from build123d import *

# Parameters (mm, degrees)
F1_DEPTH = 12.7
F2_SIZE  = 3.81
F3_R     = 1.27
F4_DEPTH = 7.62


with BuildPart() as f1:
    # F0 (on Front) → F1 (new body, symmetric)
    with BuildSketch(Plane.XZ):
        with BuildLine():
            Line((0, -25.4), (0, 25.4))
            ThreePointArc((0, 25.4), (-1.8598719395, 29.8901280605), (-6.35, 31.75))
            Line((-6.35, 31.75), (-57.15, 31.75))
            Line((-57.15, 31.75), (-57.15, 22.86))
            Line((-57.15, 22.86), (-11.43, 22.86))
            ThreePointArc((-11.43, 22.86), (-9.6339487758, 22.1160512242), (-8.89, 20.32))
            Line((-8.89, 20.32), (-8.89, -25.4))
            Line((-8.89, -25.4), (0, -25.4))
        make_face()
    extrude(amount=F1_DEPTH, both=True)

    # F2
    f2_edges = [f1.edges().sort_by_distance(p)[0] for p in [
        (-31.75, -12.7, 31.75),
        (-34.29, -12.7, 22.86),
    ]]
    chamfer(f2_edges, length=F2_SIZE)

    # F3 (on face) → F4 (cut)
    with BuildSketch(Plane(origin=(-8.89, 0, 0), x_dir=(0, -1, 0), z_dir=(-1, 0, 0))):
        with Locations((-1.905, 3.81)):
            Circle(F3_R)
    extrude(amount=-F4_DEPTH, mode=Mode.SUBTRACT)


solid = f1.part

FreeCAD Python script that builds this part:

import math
import FreeCAD as App
import Part
import Sketcher
Q = App.Units.Quantity


def edges_at(feature, points):
    """Names of the edges that pass closest to the given points."""
    edges = feature.Shape.Edges
    near = lambda p: min(range(len(edges)), key=lambda i: edges[i].distToShape(Part.Vertex(*p))[0])
    return sorted({f"Edge{near(p) + 1}" for p in points})

doc = App.newDocument("Part")
body = doc.addObject("PartDesign::Body", "Body")

# Sketch on XZ plane
sketch1 = doc.addObject("Sketcher::SketchObject", "Sketch")
body.addObject(sketch1)
sketch1.AttachmentSupport = (doc.XZ_Plane, [""])
sketch1.MapMode = "FlatFace"
sketch1.addGeometry([
    Part.LineSegment(App.Vector(0, -25.4, 0), App.Vector(0, 25.4, 0)),  # 0
    Part.ArcOfCircle(Part.Circle(App.Vector(-6.3, 25.4, 0), App.Vector(0, 0, 1), 6.3), math.radians(0), math.radians(90)),  # 1
    Part.LineSegment(App.Vector(-6.3, 31.8, 0), App.Vector(-57.1, 31.8, 0)),  # 2
    Part.LineSegment(App.Vector(-57.1, 31.8, 0), App.Vector(-57.1, 22.9, 0)),  # 3
    Part.LineSegment(App.Vector(-57.1, 22.9, 0), App.Vector(-11.4, 22.9, 0)),  # 4
    Part.ArcOfCircle(Part.Circle(App.Vector(-11.4, 20.3, 0), App.Vector(0, 0, 1), 2.5), math.radians(0), math.radians(90)),  # 5
    Part.LineSegment(App.Vector(-8.9, 20.3, 0), App.Vector(-8.9, -25.4, 0)),  # 6
    Part.LineSegment(App.Vector(-8.9, -25.4, 0), App.Vector(0, -25.4, 0)),  # 7
], False)
sketch1.addConstraint([
    Sketcher.Constraint("Tangent", 0, 2, 1, 1),
    Sketcher.Constraint("Tangent", 1, 2, 2, 1),
    Sketcher.Constraint("Coincident", 2, 2, 3, 1),
    Sketcher.Constraint("Coincident", 3, 2, 4, 1),
    Sketcher.Constraint("Tangent", 4, 2, 5, 2),
    Sketcher.Constraint("Tangent", 5, 1, 6, 1),
    Sketcher.Constraint("Coincident", 6, 2, 7, 1),
    Sketcher.Constraint("Coincident", 7, 2, 0, 1),
    Sketcher.Constraint("Vertical", 0),
    Sketcher.Constraint("Horizontal", 2),
    Sketcher.Constraint("Vertical", 3),
    Sketcher.Constraint("Horizontal", 4),
    Sketcher.Constraint("Vertical", 6),
    Sketcher.Constraint("Horizontal", 7),
    Sketcher.Constraint("Symmetric", 0, 2, 7, 2, -1, 1),
    Sketcher.Constraint("Equal", 2, 0),
    Sketcher.Constraint("Equal", 7, 3),
    Sketcher.Constraint("Radius", 5, Q("0.1 in")),
    Sketcher.Constraint("DistanceX", 2, 2, 2, 1, Q("2 in")),
    Sketcher.Constraint("Radius", 1, Q("0.25 in")),
    Sketcher.Constraint("DistanceX", 4, 1, 4, 2, Q("1.8 in")),
])
pad1 = doc.addObject("PartDesign::Pad", "Pad")
body.addObject(pad1)
pad1.Profile = sketch1
pad1.Length = Q("1 in")
pad1.Midplane = True
doc.recompute()

chamfer = doc.addObject("PartDesign::Chamfer", "Chamfer")
body.addObject(chamfer)
chamfer.Base = (pad1, edges_at(pad1, [(-31.75, -12.7, 31.75), (-34.29, -12.7, 22.86)]))
chamfer.Size = Q("0.15 in")

# Sketch on YZ plane
sketch2 = doc.addObject("Sketcher::SketchObject", "Sketch001")
body.addObject(sketch2)
sketch2.AttachmentSupport = (doc.YZ_Plane, [""])
sketch2.MapMode = "FlatFace"
sketch2.AttachmentOffset = App.Placement(App.Vector(0, 0, -0.35 * 25.4), App.Rotation())
sketch2.addGeometry(Part.Circle(App.Vector(1.9, 3.8, 0), App.Vector(0, 0, 1), 1.3), False)
sketch2.addConstraint([
    Sketcher.Constraint("Diameter", 0, Q("0.1 in")),
    Sketcher.Constraint("DistanceY", -1, 1, 0, 3, Q("0.15 in")),
    Sketcher.Constraint("DistanceX", -1, 1, 0, 3, Q("0.075 in")),
])
pocket1 = doc.addObject("PartDesign::Pocket", "Pocket")
body.addObject(pocket1)
pocket1.Profile = sketch2
pocket1.Length = Q("0.3 in")
pocket1.Reversed = True

doc.recompute()
